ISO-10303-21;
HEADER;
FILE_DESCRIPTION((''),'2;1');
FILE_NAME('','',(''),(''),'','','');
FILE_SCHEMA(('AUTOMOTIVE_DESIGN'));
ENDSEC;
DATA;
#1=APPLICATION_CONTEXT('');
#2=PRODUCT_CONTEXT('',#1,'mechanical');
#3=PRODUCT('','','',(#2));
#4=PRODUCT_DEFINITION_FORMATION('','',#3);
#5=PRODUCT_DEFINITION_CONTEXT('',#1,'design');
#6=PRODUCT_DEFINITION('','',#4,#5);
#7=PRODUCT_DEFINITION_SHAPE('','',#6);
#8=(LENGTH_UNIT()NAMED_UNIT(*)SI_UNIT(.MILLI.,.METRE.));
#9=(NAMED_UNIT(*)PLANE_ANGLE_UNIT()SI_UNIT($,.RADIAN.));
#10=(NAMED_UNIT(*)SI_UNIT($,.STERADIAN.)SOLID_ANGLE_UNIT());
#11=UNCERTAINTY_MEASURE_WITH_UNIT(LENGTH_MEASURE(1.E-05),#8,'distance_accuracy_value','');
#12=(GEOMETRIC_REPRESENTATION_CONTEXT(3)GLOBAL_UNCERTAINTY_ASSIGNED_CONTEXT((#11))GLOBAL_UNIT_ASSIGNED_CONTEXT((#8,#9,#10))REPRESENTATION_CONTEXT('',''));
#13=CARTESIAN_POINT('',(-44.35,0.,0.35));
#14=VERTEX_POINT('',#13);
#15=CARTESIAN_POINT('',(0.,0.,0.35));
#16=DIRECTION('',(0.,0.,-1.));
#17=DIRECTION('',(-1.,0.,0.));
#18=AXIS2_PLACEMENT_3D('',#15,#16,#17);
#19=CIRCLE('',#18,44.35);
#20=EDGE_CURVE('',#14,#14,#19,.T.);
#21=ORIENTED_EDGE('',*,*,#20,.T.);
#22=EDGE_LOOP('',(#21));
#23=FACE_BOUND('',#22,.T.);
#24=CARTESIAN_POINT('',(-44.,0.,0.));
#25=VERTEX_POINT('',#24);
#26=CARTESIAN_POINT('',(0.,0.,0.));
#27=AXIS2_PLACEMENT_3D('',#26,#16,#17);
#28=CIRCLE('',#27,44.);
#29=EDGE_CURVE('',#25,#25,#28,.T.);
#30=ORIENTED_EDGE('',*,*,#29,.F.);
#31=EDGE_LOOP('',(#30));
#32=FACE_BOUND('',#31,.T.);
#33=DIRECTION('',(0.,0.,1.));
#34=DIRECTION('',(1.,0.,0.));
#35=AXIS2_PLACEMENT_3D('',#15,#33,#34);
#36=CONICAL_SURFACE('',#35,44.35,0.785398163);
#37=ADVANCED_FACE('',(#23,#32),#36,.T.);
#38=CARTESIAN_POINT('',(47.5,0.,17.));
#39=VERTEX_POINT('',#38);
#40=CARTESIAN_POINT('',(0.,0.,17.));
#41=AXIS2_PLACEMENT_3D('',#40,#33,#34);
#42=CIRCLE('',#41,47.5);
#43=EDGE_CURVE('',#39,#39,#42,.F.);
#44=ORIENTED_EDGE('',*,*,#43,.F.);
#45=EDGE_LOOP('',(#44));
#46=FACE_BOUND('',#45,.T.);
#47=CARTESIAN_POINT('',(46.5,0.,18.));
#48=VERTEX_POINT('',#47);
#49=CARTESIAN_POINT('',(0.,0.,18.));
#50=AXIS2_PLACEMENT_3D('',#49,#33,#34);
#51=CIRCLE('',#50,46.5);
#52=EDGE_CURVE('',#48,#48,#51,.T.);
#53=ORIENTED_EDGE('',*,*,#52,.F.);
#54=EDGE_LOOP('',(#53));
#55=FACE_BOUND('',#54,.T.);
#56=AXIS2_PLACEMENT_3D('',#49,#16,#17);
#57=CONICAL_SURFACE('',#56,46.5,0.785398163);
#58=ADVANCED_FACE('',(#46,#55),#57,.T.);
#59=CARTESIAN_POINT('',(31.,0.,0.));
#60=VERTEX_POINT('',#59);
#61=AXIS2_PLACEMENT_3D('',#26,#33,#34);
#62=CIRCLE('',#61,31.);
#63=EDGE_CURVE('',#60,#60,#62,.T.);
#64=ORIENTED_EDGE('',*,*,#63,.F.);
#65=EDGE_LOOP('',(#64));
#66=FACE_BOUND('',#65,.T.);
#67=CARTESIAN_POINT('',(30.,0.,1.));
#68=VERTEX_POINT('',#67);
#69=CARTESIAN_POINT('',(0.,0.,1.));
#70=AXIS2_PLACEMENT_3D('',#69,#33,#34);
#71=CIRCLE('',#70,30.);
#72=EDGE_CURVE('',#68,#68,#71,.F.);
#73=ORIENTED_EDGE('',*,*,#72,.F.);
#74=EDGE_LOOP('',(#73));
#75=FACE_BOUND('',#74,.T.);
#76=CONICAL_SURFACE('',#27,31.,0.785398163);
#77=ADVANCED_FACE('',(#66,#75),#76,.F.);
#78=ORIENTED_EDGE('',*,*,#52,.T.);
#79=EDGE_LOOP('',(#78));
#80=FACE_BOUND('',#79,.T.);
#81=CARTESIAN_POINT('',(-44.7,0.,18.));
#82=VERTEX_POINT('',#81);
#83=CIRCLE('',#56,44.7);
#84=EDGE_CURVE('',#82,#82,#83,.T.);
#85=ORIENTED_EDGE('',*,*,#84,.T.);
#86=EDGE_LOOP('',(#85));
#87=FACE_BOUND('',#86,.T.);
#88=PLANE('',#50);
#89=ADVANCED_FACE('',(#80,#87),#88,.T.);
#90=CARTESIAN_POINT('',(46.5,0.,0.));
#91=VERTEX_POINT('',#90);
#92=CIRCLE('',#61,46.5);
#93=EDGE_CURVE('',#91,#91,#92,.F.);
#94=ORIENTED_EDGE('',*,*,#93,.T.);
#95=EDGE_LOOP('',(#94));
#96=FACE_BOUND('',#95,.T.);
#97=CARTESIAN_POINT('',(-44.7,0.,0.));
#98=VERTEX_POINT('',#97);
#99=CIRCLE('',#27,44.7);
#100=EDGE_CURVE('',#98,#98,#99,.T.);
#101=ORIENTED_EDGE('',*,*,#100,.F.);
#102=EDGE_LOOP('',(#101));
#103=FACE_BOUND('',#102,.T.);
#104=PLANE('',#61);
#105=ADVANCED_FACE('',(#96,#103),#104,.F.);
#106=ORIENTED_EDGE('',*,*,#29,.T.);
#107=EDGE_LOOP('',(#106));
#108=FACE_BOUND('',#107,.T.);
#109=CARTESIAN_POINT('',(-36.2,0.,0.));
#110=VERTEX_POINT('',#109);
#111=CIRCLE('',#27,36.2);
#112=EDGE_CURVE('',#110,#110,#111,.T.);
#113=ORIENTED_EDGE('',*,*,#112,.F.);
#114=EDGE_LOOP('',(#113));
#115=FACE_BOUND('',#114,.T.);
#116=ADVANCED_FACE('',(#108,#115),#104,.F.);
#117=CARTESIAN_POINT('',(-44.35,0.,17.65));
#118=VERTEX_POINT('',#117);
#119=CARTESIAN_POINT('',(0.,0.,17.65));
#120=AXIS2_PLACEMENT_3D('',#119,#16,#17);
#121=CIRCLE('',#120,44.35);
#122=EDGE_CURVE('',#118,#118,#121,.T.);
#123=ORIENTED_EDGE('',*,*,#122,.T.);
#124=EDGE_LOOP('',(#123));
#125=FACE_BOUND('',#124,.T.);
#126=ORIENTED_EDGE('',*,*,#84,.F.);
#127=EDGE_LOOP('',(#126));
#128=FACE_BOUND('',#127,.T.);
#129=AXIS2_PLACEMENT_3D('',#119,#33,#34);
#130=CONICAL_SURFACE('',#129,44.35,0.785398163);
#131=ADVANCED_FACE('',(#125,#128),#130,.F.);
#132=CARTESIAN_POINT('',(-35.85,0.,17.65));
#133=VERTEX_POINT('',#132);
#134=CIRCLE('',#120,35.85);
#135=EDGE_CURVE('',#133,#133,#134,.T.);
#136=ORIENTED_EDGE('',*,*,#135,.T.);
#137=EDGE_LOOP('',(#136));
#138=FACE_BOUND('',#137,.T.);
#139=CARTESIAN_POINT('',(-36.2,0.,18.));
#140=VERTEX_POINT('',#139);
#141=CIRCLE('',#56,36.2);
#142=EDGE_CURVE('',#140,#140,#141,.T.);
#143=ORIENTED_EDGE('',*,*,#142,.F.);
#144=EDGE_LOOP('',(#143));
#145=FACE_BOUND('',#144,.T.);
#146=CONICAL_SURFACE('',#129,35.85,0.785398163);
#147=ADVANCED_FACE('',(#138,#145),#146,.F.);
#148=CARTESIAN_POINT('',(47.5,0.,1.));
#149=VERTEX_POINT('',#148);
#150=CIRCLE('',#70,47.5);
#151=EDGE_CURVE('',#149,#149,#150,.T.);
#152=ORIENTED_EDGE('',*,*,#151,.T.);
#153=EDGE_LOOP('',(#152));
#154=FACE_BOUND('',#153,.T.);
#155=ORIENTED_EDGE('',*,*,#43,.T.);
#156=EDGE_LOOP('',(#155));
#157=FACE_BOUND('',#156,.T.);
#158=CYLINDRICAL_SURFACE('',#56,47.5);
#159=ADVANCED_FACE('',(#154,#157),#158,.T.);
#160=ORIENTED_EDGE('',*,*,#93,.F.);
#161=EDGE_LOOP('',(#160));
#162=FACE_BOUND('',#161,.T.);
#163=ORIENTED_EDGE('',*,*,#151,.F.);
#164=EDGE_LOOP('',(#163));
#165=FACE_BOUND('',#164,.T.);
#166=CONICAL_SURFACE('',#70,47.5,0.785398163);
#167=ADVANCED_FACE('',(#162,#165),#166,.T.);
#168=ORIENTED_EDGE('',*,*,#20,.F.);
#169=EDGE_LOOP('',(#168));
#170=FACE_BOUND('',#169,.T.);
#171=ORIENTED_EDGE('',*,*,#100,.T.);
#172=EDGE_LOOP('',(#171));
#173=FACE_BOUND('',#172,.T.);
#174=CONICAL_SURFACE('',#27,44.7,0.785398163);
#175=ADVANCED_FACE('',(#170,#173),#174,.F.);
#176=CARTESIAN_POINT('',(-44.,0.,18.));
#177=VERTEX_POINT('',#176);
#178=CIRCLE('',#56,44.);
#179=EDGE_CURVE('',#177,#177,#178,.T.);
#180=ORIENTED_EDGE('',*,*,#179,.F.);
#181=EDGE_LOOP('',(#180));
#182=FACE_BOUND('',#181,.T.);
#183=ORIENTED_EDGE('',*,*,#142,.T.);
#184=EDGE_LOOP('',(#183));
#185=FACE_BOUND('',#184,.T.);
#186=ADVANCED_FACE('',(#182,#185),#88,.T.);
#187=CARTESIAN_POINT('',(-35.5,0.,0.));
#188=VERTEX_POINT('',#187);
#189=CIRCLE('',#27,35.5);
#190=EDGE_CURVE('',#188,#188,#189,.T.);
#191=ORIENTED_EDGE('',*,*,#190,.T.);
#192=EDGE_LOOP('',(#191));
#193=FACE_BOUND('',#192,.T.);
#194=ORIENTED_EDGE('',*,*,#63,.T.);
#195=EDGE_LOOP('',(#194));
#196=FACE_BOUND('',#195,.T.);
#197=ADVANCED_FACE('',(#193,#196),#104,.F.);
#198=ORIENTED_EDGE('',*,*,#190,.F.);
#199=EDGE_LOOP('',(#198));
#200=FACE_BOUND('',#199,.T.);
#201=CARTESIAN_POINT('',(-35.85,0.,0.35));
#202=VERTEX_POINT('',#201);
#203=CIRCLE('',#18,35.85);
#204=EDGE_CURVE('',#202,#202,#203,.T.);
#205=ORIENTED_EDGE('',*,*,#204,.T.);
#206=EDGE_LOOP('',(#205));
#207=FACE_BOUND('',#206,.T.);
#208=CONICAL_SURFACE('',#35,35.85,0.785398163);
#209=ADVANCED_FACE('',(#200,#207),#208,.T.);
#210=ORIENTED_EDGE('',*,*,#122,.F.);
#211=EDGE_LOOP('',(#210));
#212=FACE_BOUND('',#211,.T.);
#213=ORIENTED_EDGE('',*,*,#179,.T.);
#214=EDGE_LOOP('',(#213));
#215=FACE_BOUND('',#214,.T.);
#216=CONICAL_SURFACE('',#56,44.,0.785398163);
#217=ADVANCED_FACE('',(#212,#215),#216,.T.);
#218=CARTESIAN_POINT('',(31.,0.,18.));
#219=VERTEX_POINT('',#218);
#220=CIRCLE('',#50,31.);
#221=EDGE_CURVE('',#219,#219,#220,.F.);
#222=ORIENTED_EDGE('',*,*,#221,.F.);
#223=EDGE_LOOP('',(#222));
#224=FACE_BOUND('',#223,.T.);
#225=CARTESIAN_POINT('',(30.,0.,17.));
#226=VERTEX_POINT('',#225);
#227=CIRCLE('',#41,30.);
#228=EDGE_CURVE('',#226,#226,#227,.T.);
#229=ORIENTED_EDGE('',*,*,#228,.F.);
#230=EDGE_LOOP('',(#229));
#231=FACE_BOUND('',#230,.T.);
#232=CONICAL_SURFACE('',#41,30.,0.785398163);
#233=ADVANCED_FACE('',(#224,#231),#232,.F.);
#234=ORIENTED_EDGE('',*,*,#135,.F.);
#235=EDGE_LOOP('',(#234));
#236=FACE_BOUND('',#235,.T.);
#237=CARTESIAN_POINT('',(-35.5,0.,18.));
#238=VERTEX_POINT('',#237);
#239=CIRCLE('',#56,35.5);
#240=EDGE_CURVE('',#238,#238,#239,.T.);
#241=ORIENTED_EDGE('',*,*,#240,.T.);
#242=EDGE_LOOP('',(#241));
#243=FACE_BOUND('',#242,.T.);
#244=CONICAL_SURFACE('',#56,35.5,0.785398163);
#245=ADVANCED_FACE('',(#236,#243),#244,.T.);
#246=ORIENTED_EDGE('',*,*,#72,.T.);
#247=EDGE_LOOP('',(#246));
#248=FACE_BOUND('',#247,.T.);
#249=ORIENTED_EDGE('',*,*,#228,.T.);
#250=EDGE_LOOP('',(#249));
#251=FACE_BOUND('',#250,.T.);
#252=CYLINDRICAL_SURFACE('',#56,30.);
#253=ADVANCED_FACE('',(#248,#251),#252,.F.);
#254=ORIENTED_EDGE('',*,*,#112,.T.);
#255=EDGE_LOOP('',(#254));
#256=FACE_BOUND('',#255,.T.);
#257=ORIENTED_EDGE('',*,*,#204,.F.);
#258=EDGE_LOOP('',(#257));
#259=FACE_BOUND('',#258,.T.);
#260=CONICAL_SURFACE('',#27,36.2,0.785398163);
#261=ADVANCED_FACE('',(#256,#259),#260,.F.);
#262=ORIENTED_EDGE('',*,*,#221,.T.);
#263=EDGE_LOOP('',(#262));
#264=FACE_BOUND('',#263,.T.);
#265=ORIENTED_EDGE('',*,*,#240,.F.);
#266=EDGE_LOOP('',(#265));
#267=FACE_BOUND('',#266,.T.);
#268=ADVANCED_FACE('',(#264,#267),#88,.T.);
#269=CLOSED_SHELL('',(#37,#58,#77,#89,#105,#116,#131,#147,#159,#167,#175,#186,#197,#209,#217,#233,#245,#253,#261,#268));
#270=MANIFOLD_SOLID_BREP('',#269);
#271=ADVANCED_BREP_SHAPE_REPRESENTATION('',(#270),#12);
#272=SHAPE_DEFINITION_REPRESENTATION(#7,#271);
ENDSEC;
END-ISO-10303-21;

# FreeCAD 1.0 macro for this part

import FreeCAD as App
import Part
import Sketcher
from FreeCAD import Vector


def edges_at(feature, points):
    """Names of the edges that pass closest to the given points."""
    edges = feature.Shape.Edges
    near = lambda p: min(range(len(edges)), key=lambda i: edges[i].distToShape(Part.Vertex(*p))[0])
    return sorted({f"Edge{near(p) + 1}" for p in points})


def add_polygon(sketch, points):
    """Adds a closed chain of lines whose ends are joined by coincident constraints."""
    first, n = sketch.GeometryCount, len(points)
    for a, b in zip(points, points[1:] + points[:1]):
        sketch.addGeometry(Part.LineSegment(App.Vector(*a, 0), App.Vector(*b, 0)), False)
    for i in range(n):
        sketch.addConstraint(Sketcher.Constraint("Coincident", first + i, 2, first + (i + 1) % n, 1))

doc = App.newDocument("Part")
body = doc.addObject("PartDesign::Body", "Body")

sketch1 = body.newObject("Sketcher::SketchObject", "Sketch")
sketch1.AttachmentSupport = (doc.getObject("XY_Plane"), [""])
sketch1.MapMode = "FlatFace"
sketch1.addGeometry(Part.Circle(Vector(0, 0, 0), Vector(0, 0, 1), 48), False)
sketch1.addGeometry(Part.Circle(Vector(0, 0, 0), Vector(0, 0, 1), 30), False)
sketch1.addConstraint(Sketcher.Constraint("Coincident", 0, 3, -1, 1))
sketch1.addConstraint(Sketcher.Constraint("Coincident", 1, 3, -1, 1))
sketch1.addConstraint(Sketcher.Constraint("Diameter", 0, 95.0))
sketch1.addConstraint(Sketcher.Constraint("Diameter", 1, 60.0))
pad1 = body.newObject("PartDesign::Pad", "Pad")
pad1.Profile = sketch1
pad1.Length = 18
doc.recompute()

chamfer = body.newObject("PartDesign::Chamfer", "Chamfer")
chamfer.Base = (pad1, edges_at(pad1, [
    (-47.5, 0, 0),
    (-47.5, 0, 18),
    (-30, 0, 0),
    (-30, 0, 18),
]))
chamfer.Size = 1

sketch2 = body.newObject("Sketcher::SketchObject", "Sketch001")
sketch2.AttachmentSupport = (doc.getObject("YZ_Plane"), [""])
sketch2.MapMode = "FlatFace"
add_polygon(sketch2, [(35.5, 18), (35.85, 17.65), (36.2, 18)])
add_polygon(sketch2, [(44, 18), (44.35, 17.65), (44.7, 18)])
add_polygon(sketch2, [(35.5, 0), (36.2, 0), (35.85, 0.35)])
add_polygon(sketch2, [(44, 0), (44.7, 0), (44.35, 0.35)])
sketch2.addConstraint(Sketcher.Constraint("Horizontal", 2))
sketch2.addConstraint(Sketcher.Constraint("Horizontal", 5))
sketch2.addConstraint(Sketcher.Constraint("Horizontal", 6))
sketch2.addConstraint(Sketcher.Constraint("Horizontal", 9))
sketch2.addConstraint(Sketcher.Constraint("PointOnObject", 6, 2, -1))
sketch2.addConstraint(Sketcher.Constraint("PointOnObject", 9, 2, -1))
sketch2.addConstraint(Sketcher.Constraint("Perpendicular", 0, 1))
sketch2.addConstraint(Sketcher.Constraint("Perpendicular", 1, 3))
sketch2.addConstraint(Sketcher.Constraint("Perpendicular", 3, 4))
sketch2.addConstraint(Sketcher.Constraint("Perpendicular", 4, 7))
sketch2.addConstraint(Sketcher.Constraint("Perpendicular", 7, 8))
sketch2.addConstraint(Sketcher.Constraint("Perpendicular", 8, 10))
sketch2.addConstraint(Sketcher.Constraint("Perpendicular", 10, 11))
sketch2.addConstraint(Sketcher.Constraint("Horizontal", 0, 2, 3, 2))
sketch2.addConstraint(Sketcher.Constraint("Horizontal", 2, 2, 4, 2))
sketch2.addConstraint(Sketcher.Constraint("Horizontal", 7, 2, 10, 2))
sketch2.addConstraint(Sketcher.Constraint("Vertical", 1, 2, 6, 2))
sketch2.addConstraint(Sketcher.Constraint("Vertical", 0, 2, 7, 2))
sketch2.addConstraint(Sketcher.Constraint("Vertical", 2, 2, 8, 2))
sketch2.addConstraint(Sketcher.Constraint("Vertical", 4, 2, 9, 2))
sketch2.addConstraint(Sketcher.Constraint("DistanceX", 2, 2, 2, 1, 0.7))
sketch2.addConstraint(Sketcher.Constraint("DistanceY", -1, 1, 1, 2, 18.0))
sketch2.addConstraint(Sketcher.Constraint("DistanceX", -1, 1, 5, 2, 44.0))
sketch2.addConstraint(Sketcher.Constraint("DistanceX", -1, 1, 1, 2, 36.2))
groove = body.newObject("PartDesign::Groove", "Groove")
groove.Profile = sketch2
groove.ReferenceAxis = (sketch2, ["V_Axis"])
groove.Angle = 360

doc.recompute()
